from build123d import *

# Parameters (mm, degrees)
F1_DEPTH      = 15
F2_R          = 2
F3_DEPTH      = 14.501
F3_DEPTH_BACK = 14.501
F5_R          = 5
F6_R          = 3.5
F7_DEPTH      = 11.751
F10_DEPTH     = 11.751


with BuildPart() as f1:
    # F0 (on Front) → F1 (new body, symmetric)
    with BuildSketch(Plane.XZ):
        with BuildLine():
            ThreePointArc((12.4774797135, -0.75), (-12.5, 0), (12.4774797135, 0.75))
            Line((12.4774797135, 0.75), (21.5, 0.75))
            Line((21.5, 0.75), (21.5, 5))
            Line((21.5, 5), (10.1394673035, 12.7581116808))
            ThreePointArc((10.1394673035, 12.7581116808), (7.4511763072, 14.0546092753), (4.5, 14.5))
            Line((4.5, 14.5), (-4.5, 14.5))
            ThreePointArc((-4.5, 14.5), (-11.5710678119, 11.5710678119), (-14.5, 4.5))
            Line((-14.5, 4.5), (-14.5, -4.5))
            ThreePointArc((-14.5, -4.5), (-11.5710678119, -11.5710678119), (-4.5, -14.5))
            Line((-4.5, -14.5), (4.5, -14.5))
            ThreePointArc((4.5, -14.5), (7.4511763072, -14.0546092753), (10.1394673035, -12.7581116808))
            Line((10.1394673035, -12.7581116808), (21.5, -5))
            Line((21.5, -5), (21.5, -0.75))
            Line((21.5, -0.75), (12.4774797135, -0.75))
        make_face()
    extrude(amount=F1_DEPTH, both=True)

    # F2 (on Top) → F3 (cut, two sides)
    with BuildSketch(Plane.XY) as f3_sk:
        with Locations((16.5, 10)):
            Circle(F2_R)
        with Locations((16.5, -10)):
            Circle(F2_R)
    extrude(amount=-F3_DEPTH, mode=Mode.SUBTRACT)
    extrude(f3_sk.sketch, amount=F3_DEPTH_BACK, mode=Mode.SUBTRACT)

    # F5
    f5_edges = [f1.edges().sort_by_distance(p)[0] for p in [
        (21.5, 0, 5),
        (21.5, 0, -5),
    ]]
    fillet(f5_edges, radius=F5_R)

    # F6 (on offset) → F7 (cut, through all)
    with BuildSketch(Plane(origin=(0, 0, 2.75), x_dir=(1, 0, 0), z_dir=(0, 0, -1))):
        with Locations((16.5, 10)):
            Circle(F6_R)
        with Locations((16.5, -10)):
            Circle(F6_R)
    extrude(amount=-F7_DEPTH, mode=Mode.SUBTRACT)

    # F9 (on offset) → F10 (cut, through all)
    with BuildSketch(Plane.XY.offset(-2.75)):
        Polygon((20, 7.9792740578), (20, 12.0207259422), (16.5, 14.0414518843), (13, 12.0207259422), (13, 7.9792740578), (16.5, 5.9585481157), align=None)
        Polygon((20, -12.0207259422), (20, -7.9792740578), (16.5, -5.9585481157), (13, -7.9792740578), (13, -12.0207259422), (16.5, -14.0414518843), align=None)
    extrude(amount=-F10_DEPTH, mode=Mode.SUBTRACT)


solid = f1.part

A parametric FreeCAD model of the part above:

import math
import FreeCAD as App
import Part
import Sketcher
Q = App.Units.Quantity


def edges_at(feature, points):
    """Names of the edges that pass closest to the given points."""
    edges = feature.Shape.Edges
    near = lambda p: min(range(len(edges)), key=lambda i: edges[i].distToShape(Part.Vertex(*p))[0])
    return sorted({f"Edge{near(p) + 1}" for p in points})

doc = App.newDocument("Part")
body = doc.addObject("PartDesign::Body", "Body")

# Sketch on XZ plane
sketch1 = body.newObject("Sketcher::SketchObject", "Sketch")
sketch1.AttachmentSupport = (doc.getObject("XZ_Plane"), [""])
sketch1.MapMode = "FlatFace"
sketch1.addGeometry([
    Part.ArcOfCircle(Part.Circle(App.Vector(0, 0, 0), App.Vector(0, 0, 1), 12.5), math.radians(3), math.radians(357)),  # 0
    Part.LineSegment(App.Vector(12.5, 0.8, 0), App.Vector(21.5, 0.8, 0)),  # 1
    Part.LineSegment(App.Vector(21.5, 0.8, 0), App.Vector(21.5, 5, 0)),  # 2
    Part.LineSegment(App.Vector(21.5, 5, 0), App.Vector(10.1, 12.8, 0)),  # 3
    Part.ArcOfCircle(Part.Circle(App.Vector(4.5, 4.5, 0), App.Vector(0, 0, 1), 10), math.radians(56), math.radians(90)),  # 4
    Part.LineSegment(App.Vector(4.5, 14.5, 0), App.Vector(-4.5, 14.5, 0)),  # 5
    Part.ArcOfCircle(Part.Circle(App.Vector(-4.5, 4.5, 0), App.Vector(0, 0, 1), 10), math.radians(90), math.radians(180)),  # 6
    Part.LineSegment(App.Vector(-14.5, 4.5, 0), App.Vector(-14.5, -4.5, 0)),  # 7
    Part.ArcOfCircle(Part.Circle(App.Vector(-4.5, -4.5, 0), App.Vector(0, 0, 1), 10), math.radians(180), math.radians(270)),  # 8
    Part.LineSegment(App.Vector(-4.5, -14.5, 0), App.Vector(4.5, -14.5, 0)),  # 9
    Part.ArcOfCircle(Part.Circle(App.Vector(4.5, -4.5, 0), App.Vector(0, 0, 1), 10), math.radians(-90), math.radians(-56)),  # 10
    Part.LineSegment(App.Vector(10.1, -12.8, 0), App.Vector(21.5, -5, 0)),  # 11
    Part.LineSegment(App.Vector(21.5, -5, 0), App.Vector(21.5, -0.8, 0)),  # 12
    Part.LineSegment(App.Vector(21.5, -0.8, 0), App.Vector(12.5, -0.8, 0)),  # 13
], False)
sketch1.addConstraint([
    Sketcher.Constraint("Coincident", 0, 1, 1, 1),
    Sketcher.Constraint("Coincident", 1, 2, 2, 1),
    Sketcher.Constraint("Coincident", 2, 2, 3, 1),
    Sketcher.Constraint("Tangent", 3, 2, 4, 1),
    Sketcher.Constraint("Tangent", 4, 2, 5, 1),
    Sketcher.Constraint("Tangent", 5, 2, 6, 1),
    Sketcher.Constraint("Tangent", 6, 2, 7, 1),
    Sketcher.Constraint("Tangent", 7, 2, 8, 1),
    Sketcher.Constraint("Tangent", 8, 2, 9, 1),
    Sketcher.Constraint("Tangent", 9, 2, 10, 1),
    Sketcher.Constraint("Tangent", 10, 2, 11, 1),
    Sketcher.Constraint("Coincident", 11, 2, 12, 1),
    Sketcher.Constraint("Coincident", 12, 2, 13, 1),
    Sketcher.Constraint("Coincident", 13, 2, 0, 2),
    Sketcher.Constraint("Horizontal", 1),
    Sketcher.Constraint("Vertical", 2),
    Sketcher.Constraint("Horizontal", 5),
    Sketcher.Constraint("Vertical", 7),
    Sketcher.Constraint("Horizontal", 9),
    Sketcher.Constraint("Vertical", 12),
    Sketcher.Constraint("Horizontal", 13),
    Sketcher.Constraint("Coincident", 0, 3, -1, 1),
    Sketcher.Constraint("Equal", 4, 6),
    Sketcher.Constraint("Equal", 6, 8),
    Sketcher.Constraint("Equal", 8, 10),
    Sketcher.Constraint("Symmetric", 4, 3, 8, 3, -1, 1),
    Sketcher.Constraint("Symmetric", 3, 2, 10, 2, -1),
    Sketcher.Constraint("Symmetric", 1, 2, 12, 2, -1),
    Sketcher.Constraint("Equal", 9, 7),
    Sketcher.Constraint("Radius", 4, 10.0),
    Sketcher.Constraint("Radius", 0, 12.5),
    Sketcher.Constraint("DistanceX", 5, 2, 5, 1, 9.0),
    Sketcher.Constraint("DistanceY", -1, 1, 2, 2, 5.0),
    Sketcher.Constraint("DistanceX", 4, 3, 1, 2, 17.0),
    Sketcher.Constraint("DistanceY", 2, 1, 2, 2, 4.25),
])
pad1 = body.newObject("PartDesign::Pad", "Pad")
pad1.Profile = sketch1
pad1.Length = 30
pad1.Midplane = True

# Sketch on XY plane
sketch2 = body.newObject("Sketcher::SketchObject", "Sketch001")
sketch2.AttachmentSupport = (doc.getObject("XY_Plane"), [""])
sketch2.MapMode = "FlatFace"
sketch2.addGeometry([
    Part.Circle(App.Vector(16.5, 10, 0), App.Vector(0, 0, 1), 2),
    Part.Circle(App.Vector(16.5, -10, 0), App.Vector(0, 0, 1), 2),
], False)
sketch2.addConstraint([
    Sketcher.Constraint("Equal", 0, 1),
    Sketcher.Constraint("Symmetric", 0, 3, 1, 3, -1),
    Sketcher.Constraint("Diameter", 0, 4.0),
    Sketcher.Constraint("DistanceY", -1, 1, 0, 3, 10.0),
    Sketcher.Constraint("DistanceX", -1, 1, 0, 3, 16.5),
])
pocket1 = body.newObject("PartDesign::Pocket", "Pocket")
pocket1.Profile = sketch2
pocket1.Type = "ThroughAll"
pocket1.Midplane = True
doc.recompute()

fillet = body.newObject("PartDesign::Fillet", "Fillet")
fillet.Base = (pocket1, edges_at(pocket1, [(21.5, 0, 5), (21.5, 0, -5)]))
fillet.Radius = 5

# Sketch on XY plane
sketch3 = body.newObject("Sketcher::SketchObject", "Sketch002")
sketch3.AttachmentSupport = (doc.getObject("XY_Plane"), [""])
sketch3.MapMode = "FlatFace"
sketch3.AttachmentOffset = App.Placement(App.Vector(0, 0, 2.75), App.Rotation())
sketch3.addGeometry([
    Part.Circle(App.Vector(16.5, -10, 0), App.Vector(0, 0, 1), 3.5),
    Part.Circle(App.Vector(16.5, 10, 0), App.Vector(0, 0, 1), 3.5),
], False)
sketch3.addConstraint([
    Sketcher.Constraint("Equal", 0, 1),
    Sketcher.Constraint("Symmetric", 0, 3, 1, 3, -1),
    Sketcher.Constraint("Diameter", 0, 7.0),
    Sketcher.Constraint("DistanceY", 0, 3, -1, 1, 10.0),
    Sketcher.Constraint("DistanceX", -1, 1, 0, 3, 16.5),
])
pocket2 = body.newObject("PartDesign::Pocket", "Pocket001")
pocket2.Profile = sketch3
pocket2.Type = "ThroughAll"
pocket2.Reversed = True

# Sketch on XY plane
sketch4 = body.newObject("Sketcher::SketchObject", "Sketch003")
sketch4.AttachmentSupport = (doc.getObject("XY_Plane"), [""])
sketch4.MapMode = "FlatFace"
sketch4.AttachmentOffset = App.Placement(App.Vector(0, 0, -2.75), App.Rotation())
sketch4.addGeometry([
    Part.LineSegment(App.Vector(20, 8, 0), App.Vector(20, 12, 0)),  # 0
    Part.LineSegment(App.Vector(20, 12, 0), App.Vector(16.5, 14, 0)),  # 1
    Part.LineSegment(App.Vector(16.5, 14, 0), App.Vector(13, 12, 0)),  # 2
    Part.LineSegment(App.Vector(13, 12, 0), App.Vector(13, 8, 0)),  # 3
    Part.LineSegment(App.Vector(13, 8, 0), App.Vector(16.5, 6, 0)),  # 4
    Part.LineSegment(App.Vector(16.5, 6, 0), App.Vector(20, 8, 0)),  # 5
    Part.LineSegment(App.Vector(20, -12, 0), App.Vector(20, -8, 0)),  # 6
    Part.LineSegment(App.Vector(20, -8, 0), App.Vector(16.5, -6, 0)),  # 7
    Part.LineSegment(App.Vector(16.5, -6, 0), App.Vector(13, -8, 0)),  # 8
    Part.LineSegment(App.Vector(13, -8, 0), App.Vector(13, -12, 0)),  # 9
    Part.LineSegment(App.Vector(13, -12, 0), App.Vector(16.5, -14, 0)),  # 10
    Part.LineSegment(App.Vector(16.5, -14, 0), App.Vector(20, -12, 0)),  # 11
], False)
sketch4.addConstraint([
    Sketcher.Constraint("Coincident", 0, 2, 1, 1),
    Sketcher.Constraint("Coincident", 1, 2, 2, 1),
    Sketcher.Constraint("Coincident", 2, 2, 3, 1),
    Sketcher.Constraint("Coincident", 3, 2, 4, 1),
    Sketcher.Constraint("Coincident", 4, 2, 5, 1),
    Sketcher.Constraint("Coincident", 5, 2, 0, 1),
    Sketcher.Constraint("Coincident", 6, 2, 7, 1),
    Sketcher.Constraint("Coincident", 7, 2, 8, 1),
    Sketcher.Constraint("Coincident", 8, 2, 9, 1),
    Sketcher.Constraint("Coincident", 9, 2, 10, 1),
    Sketcher.Constraint("Coincident", 10, 2, 11, 1),
    Sketcher.Constraint("Coincident", 11, 2, 6, 1),
    Sketcher.Constraint("Vertical", 0),
    Sketcher.Constraint("Vertical", 3),
    Sketcher.Constraint("Vertical", 6),
    Sketcher.Constraint("Vertical", 9),
    Sketcher.Constraint("Symmetric", 5, 2, 6, 2, -1),
    Sketcher.Constraint("Symmetric", 4, 2, 7, 2, -1),
    Sketcher.Constraint("Symmetric", 3, 2, 8, 2, -1),
    Sketcher.Constraint("Symmetric", 1, 2, 10, 2, -1),
    Sketcher.Constraint("Parallel", 1, 4),
    Sketcher.Constraint("Parallel", 2, 5),
    Sketcher.Constraint("Parallel", 4, 7),
    Sketcher.Constraint("Parallel", 7, 10),
    Sketcher.Constraint("Parallel", 8, 11),
    Sketcher.Constraint("Horizontal", 0, 2, 2, 2),
    Sketcher.Constraint("Horizontal", 3, 2, 5, 2),
    Sketcher.Constraint("Angle", 1, Q("150 deg")),
    Sketcher.Constraint("DistanceX", -1, 1, 0, 2, 20.0),
    Sketcher.Constraint("DistanceX", -1, 1, 2, 2, 13.0),
    Sketcher.Constraint("DistanceY", 6, 2, 0, 2, 20.0),
    Sketcher.Constraint("DistanceY", 0, 1, 0, 2, 4.041452),
])
pocket3 = body.newObject("PartDesign::Pocket", "Pocket002")
pocket3.Profile = sketch4
pocket3.Type = "ThroughAll"

doc.recompute()
